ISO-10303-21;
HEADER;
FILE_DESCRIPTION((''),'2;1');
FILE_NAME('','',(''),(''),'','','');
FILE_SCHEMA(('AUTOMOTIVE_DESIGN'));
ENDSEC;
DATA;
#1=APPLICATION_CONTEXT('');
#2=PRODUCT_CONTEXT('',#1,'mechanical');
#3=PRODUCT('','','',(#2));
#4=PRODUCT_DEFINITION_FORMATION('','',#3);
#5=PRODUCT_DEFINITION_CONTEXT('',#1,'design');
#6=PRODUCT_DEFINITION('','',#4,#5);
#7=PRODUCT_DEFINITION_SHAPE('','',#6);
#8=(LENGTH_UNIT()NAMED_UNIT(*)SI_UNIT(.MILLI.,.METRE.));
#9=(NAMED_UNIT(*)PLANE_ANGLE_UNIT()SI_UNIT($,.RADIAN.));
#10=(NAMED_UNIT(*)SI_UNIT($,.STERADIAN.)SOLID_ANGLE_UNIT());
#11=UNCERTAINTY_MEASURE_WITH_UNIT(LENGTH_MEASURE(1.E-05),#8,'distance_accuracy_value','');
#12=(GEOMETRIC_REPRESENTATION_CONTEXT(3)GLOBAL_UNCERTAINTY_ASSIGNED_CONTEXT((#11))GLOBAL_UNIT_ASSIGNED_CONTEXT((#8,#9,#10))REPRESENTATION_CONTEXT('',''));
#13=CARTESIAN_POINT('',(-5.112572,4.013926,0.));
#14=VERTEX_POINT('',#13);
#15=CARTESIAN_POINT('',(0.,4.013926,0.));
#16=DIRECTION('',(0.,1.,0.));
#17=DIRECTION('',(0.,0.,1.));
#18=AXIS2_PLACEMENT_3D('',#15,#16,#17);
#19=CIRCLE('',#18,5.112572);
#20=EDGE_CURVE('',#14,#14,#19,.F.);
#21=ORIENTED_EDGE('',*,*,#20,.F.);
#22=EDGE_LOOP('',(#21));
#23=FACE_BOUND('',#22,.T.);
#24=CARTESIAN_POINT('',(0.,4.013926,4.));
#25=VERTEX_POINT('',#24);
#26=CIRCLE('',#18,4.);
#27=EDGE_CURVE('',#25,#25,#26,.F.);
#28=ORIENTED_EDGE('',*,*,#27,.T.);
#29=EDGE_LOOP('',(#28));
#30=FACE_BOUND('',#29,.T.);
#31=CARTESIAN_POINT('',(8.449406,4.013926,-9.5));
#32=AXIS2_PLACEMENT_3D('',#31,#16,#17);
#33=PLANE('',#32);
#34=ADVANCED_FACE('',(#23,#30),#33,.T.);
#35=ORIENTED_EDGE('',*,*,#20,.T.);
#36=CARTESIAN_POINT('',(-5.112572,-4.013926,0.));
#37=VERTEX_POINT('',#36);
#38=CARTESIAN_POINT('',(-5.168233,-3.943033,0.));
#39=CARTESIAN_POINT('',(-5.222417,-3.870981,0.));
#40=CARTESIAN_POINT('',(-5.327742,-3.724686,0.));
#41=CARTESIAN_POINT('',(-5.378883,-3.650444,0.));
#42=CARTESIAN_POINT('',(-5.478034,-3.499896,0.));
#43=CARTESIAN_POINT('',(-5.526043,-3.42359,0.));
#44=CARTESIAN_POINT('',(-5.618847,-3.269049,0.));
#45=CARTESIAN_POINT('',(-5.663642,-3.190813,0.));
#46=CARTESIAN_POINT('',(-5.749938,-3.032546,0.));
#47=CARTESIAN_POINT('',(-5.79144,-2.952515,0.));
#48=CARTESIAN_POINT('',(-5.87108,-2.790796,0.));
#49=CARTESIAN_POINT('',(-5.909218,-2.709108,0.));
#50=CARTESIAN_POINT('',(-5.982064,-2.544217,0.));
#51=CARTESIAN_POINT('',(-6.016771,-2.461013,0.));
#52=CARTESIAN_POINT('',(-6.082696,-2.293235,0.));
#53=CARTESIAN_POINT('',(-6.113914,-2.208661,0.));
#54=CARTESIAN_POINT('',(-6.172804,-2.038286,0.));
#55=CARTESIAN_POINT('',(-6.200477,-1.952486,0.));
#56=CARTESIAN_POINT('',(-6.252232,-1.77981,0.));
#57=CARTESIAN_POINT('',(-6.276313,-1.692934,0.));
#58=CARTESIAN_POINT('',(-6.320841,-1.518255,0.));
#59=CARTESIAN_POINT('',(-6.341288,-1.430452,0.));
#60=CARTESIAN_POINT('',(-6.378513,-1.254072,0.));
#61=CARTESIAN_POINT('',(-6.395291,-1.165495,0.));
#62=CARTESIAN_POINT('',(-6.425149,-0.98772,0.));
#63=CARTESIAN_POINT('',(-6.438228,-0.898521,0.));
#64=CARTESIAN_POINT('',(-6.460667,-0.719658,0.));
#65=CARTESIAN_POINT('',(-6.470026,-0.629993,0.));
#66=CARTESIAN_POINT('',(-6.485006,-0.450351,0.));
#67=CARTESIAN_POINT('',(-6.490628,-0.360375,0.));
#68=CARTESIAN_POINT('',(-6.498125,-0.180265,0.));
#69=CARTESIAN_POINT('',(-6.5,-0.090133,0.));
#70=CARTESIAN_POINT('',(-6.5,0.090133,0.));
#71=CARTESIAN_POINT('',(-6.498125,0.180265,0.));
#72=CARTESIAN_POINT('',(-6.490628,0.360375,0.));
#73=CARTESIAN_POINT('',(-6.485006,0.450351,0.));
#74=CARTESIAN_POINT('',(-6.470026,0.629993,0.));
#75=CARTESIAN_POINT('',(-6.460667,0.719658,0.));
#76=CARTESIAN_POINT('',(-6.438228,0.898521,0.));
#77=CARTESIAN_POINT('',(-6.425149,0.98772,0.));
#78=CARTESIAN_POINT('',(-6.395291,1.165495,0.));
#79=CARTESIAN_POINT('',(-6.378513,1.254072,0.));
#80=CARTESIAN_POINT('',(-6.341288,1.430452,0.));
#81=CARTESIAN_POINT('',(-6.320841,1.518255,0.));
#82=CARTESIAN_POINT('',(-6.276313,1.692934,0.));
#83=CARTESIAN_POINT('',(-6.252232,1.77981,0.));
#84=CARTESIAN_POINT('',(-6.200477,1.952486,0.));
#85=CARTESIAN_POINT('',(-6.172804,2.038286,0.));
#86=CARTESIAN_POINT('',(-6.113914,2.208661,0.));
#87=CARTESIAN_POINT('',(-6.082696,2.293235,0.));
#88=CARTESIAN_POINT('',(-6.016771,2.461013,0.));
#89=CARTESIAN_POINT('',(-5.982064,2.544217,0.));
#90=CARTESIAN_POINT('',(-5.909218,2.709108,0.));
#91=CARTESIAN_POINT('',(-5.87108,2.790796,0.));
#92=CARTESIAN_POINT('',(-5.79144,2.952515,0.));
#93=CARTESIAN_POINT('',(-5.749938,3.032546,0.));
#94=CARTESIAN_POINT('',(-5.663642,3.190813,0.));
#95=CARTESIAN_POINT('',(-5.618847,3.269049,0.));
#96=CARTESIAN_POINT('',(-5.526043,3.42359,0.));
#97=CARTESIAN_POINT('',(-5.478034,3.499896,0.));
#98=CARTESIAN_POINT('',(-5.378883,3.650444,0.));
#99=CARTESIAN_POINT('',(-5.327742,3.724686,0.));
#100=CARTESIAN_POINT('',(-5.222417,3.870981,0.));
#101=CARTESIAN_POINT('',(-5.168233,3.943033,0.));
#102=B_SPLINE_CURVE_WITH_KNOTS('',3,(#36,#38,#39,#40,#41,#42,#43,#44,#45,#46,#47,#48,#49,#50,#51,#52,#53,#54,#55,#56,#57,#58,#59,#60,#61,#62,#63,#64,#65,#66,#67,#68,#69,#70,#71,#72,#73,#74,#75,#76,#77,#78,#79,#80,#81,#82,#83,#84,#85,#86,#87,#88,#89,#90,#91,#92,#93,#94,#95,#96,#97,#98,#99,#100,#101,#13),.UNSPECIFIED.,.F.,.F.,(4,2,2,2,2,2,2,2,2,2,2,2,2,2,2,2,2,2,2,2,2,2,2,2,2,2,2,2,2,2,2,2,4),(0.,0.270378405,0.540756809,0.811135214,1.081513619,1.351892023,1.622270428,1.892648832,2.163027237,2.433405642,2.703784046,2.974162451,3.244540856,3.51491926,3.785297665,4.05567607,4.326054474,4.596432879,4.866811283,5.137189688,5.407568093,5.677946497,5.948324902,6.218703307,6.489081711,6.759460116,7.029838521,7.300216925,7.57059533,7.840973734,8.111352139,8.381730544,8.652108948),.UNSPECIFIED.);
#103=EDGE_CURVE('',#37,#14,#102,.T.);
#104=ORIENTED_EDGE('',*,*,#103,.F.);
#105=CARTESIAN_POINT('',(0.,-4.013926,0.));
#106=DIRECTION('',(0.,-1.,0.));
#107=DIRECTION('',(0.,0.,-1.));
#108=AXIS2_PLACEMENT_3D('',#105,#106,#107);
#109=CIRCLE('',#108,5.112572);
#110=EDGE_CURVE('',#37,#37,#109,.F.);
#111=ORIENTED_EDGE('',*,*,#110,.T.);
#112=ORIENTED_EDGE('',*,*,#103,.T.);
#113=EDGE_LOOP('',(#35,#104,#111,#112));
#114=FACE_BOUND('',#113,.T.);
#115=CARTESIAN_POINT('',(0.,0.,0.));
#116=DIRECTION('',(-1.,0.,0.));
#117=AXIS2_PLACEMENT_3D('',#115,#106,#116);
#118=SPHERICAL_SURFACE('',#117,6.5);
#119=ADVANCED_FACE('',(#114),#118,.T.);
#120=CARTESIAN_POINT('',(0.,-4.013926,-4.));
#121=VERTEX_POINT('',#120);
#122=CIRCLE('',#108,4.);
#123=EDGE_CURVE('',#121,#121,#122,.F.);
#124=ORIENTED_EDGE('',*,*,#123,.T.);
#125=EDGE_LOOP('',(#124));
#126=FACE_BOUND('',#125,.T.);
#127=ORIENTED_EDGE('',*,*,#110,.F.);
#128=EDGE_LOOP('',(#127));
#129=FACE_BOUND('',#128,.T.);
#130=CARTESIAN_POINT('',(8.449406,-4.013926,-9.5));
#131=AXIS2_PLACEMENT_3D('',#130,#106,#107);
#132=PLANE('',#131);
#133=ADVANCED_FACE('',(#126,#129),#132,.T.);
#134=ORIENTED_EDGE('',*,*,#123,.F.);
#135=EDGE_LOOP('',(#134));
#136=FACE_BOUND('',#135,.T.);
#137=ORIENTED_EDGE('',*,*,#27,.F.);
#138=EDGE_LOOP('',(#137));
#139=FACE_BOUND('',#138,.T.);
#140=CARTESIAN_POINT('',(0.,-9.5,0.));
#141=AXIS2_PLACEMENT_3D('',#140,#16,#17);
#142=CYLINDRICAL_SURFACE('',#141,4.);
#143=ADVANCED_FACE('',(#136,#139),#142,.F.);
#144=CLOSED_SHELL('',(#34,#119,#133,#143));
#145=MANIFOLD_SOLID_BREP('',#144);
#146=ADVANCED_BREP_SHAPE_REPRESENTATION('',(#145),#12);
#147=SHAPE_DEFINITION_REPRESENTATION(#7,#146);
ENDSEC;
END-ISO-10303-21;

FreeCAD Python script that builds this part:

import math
import FreeCAD as App
import Part
import Sketcher

V = App.Vector
Q = App.Units.Quantity


def add_polygon(sketch, points):
    """Adds a closed chain of lines whose ends are joined by coincident constraints."""
    first, n = sketch.GeometryCount, len(points)
    for a, b in zip(points, points[1:] + points[:1]):
        sketch.addGeometry(Part.LineSegment(App.Vector(*a, 0), App.Vector(*b, 0)), False)
    for i in range(n):
        sketch.addConstraint(Sketcher.Constraint("Coincident", first + i, 2, first + (i + 1) % n, 1))

doc = App.newDocument("Part")
params = doc.addObject("Spreadsheet::Sheet", "Params")
for row, (alias, value) in enumerate([
    ("sketch1_radius", "6.5 mm"),
    ("revolution_angle", "360 deg"),
    ("sketch2_diameter", "8 mm"),
    ("pocket1_length", "19 mm"),
    ("sketch3_width", "19.21 mm"),
    ("pocket2_length", "19 mm"),
], start=1):
    params.set(f"A{row}", alias)
    params.set(f"B{row}", "=" + value)
    params.setAlias(f"B{row}", alias)

body = doc.addObject("PartDesign::Body", "Body")

sketch1 = body.newObject("Sketcher::SketchObject", "Sketch")
sketch1.AttachmentSupport = (doc.getObject("XY_Plane"), [""])
sketch1.MapMode = "FlatFace"
sketch1.addGeometry(Part.LineSegment(V(0, 6, 0), V(0, -6, 0)), False)
sketch1.addGeometry(Part.ArcOfCircle(Part.Circle(V(0, 0, 0), V(0, 0, 1), 6), math.radians(-90), math.radians(90)), False)
sketch1.addConstraint(Sketcher.Constraint("Coincident", 0, 1, 1, 2))
sketch1.addConstraint(Sketcher.Constraint("Coincident", 1, 1, 0, 2))
sketch1.addConstraint(Sketcher.Constraint("Vertical", 0))
sketch1.addConstraint(Sketcher.Constraint("Coincident", 1, 3, -1, 1))
sketch1.addConstraint(Sketcher.Constraint("PointOnObject", 0, 1, -2))
sketch1.addConstraint(Sketcher.Constraint("Radius", 1, Q("6.5 mm")))
sketch1.setExpression("Constraints[5]", "Params.sketch1_radius")
revolution = body.newObject("PartDesign::Revolution", "Revolution")
revolution.Profile = sketch1
revolution.ReferenceAxis = (sketch1, ["V_Axis"])
revolution.setExpression("Angle", "Params.revolution_angle")

sketch2 = body.newObject("Sketcher::SketchObject", "Sketch001")
sketch2.AttachmentSupport = (doc.getObject("XZ_Plane"), [""])
sketch2.MapMode = "FlatFace"
sketch2.addGeometry(Part.Circle(V(0, 0, 0), V(0, 0, 1), 4), False)
sketch2.addConstraint(Sketcher.Constraint("Coincident", 0, 3, -1, 1))
sketch2.addConstraint(Sketcher.Constraint("Diameter", 0, Q("8 mm")))
sketch2.setExpression("Constraints[1]", "Params.sketch2_diameter")
pocket1 = body.newObject("PartDesign::Pocket", "Pocket")
pocket1.Profile = sketch2
pocket1.setExpression("Length", "Params.pocket1_length")
pocket1.Midplane = True

sketch3 = body.newObject("Sketcher::SketchObject", "Sketch002")
sketch3.AttachmentSupport = (doc.getObject("XY_Plane"), [""])
sketch3.MapMode = "FlatFace"
add_polygon(sketch3, [(-10, 8), (-10, -8), (10, -8), (10, 8)])
add_polygon(sketch3, [(8, -4), (-8, -4), (-8, 4), (8, 4)])
sketch3.addConstraint(Sketcher.Constraint("Vertical", 0))
sketch3.addConstraint(Sketcher.Constraint("Horizontal", 1))
sketch3.addConstraint(Sketcher.Constraint("Vertical", 2))
sketch3.addConstraint(Sketcher.Constraint("Horizontal", 3))
sketch3.addConstraint(Sketcher.Constraint("Horizontal", 4))
sketch3.addConstraint(Sketcher.Constraint("Vertical", 5))
sketch3.addConstraint(Sketcher.Constraint("Horizontal", 6))
sketch3.addConstraint(Sketcher.Constraint("Vertical", 7))
sketch3.addConstraint(Sketcher.Constraint("Symmetric", 0, 2, 2, 2, -1, 1))
sketch3.addConstraint(Sketcher.Constraint("Symmetric", 4, 2, 6, 2, -1, 1))
sketch3.addConstraint(Sketcher.Constraint("DistanceX", 1, 1, 1, 2, Q("19.21 mm")))
sketch3.addConstraint(Sketcher.Constraint("DistanceY", 0, 2, 0, 1, Q("16.456 mm")))
sketch3.addConstraint(Sketcher.Constraint("DistanceX", 4, 2, 4, 1, Q("16.898813 mm")))
sketch3.addConstraint(Sketcher.Constraint("DistanceY", 5, 1, 5, 2, Q("8.027852 mm")))
sketch3.setExpression("Constraints[18]", "Params.sketch3_width")
pocket2 = body.newObject("PartDesign::Pocket", "Pocket001")
pocket2.Profile = sketch3
pocket2.setExpression("Length", "Params.pocket2_length")
pocket2.Midplane = True

doc.recompute()
